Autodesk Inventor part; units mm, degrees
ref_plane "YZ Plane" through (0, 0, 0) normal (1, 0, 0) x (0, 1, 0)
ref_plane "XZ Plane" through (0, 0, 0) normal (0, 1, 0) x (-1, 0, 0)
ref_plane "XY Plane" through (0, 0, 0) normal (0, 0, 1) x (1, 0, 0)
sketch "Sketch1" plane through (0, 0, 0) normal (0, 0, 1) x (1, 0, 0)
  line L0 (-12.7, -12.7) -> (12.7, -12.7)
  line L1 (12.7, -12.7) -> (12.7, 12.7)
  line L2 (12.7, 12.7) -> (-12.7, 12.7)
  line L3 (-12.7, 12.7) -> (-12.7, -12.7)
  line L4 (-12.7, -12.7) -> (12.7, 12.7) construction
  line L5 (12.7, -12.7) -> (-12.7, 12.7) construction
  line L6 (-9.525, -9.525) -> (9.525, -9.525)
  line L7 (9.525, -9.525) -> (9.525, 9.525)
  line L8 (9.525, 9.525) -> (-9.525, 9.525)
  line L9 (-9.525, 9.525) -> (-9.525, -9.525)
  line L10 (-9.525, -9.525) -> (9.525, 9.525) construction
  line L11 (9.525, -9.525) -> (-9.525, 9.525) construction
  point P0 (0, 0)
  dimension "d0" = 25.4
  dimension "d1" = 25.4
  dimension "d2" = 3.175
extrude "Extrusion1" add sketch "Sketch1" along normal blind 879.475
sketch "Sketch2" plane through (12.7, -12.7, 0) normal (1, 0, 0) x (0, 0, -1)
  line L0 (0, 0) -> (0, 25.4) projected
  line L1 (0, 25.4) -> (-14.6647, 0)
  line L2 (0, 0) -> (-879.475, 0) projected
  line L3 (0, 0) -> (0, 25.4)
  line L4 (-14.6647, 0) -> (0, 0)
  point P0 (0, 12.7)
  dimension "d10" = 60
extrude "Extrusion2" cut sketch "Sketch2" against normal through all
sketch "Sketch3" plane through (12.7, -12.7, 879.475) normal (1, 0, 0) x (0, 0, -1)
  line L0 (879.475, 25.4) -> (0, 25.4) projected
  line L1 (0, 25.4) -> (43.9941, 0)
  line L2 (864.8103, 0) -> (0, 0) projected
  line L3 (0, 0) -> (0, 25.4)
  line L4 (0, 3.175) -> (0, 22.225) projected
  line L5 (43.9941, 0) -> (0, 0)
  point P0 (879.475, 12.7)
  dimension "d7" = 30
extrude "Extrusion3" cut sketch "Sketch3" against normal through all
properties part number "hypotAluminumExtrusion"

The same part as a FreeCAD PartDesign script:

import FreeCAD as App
import Part
import Sketcher

V = App.Vector
Q = App.Units.Quantity

doc = App.newDocument("Part")
body = doc.addObject("PartDesign::Body", "Body")

sketch1 = body.newObject("Sketcher::SketchObject", "Sketch")
sketch1.AttachmentSupport = (doc.getObject("XY_Plane"), [""])
sketch1.MapMode = "FlatFace"
sketch1.addGeometry([
    Part.LineSegment(V(-13, 13, 0), V(-13, -13, 0)),
    Part.LineSegment(V(-13, -13, 0), V(13, -13, 0)),
    Part.LineSegment(V(13, -13, 0), V(13, 13, 0)),
    Part.LineSegment(V(13, 13, 0), V(-13, 13, 0)),
    Part.LineSegment(V(10, -10, 0), V(-10, -10, 0)),
    Part.LineSegment(V(-10, -10, 0), V(-10, 10, 0)),
    Part.LineSegment(V(-10, 10, 0), V(10, 10, 0)),
    Part.LineSegment(V(10, 10, 0), V(10, -10, 0)),
], False)
sketch1.addConstraint([
    Sketcher.Constraint("Coincident", 0, 2, 1, 1),
    Sketcher.Constraint("Coincident", 1, 2, 2, 1),
    Sketcher.Constraint("Coincident", 2, 2, 3, 1),
    Sketcher.Constraint("Coincident", 3, 2, 0, 1),
    Sketcher.Constraint("Coincident", 4, 2, 5, 1),
    Sketcher.Constraint("Coincident", 5, 2, 6, 1),
    Sketcher.Constraint("Coincident", 6, 2, 7, 1),
    Sketcher.Constraint("Coincident", 7, 2, 4, 1),
    Sketcher.Constraint("Vertical", 0),
    Sketcher.Constraint("Horizontal", 1),
    Sketcher.Constraint("Vertical", 2),
    Sketcher.Constraint("Horizontal", 3),
    Sketcher.Constraint("Horizontal", 4),
    Sketcher.Constraint("Vertical", 5),
    Sketcher.Constraint("Horizontal", 6),
    Sketcher.Constraint("Vertical", 7),
    Sketcher.Constraint("Symmetric", 0, 2, 2, 2, -1, 1),
    Sketcher.Constraint("Symmetric", 4, 2, 6, 2, -1, 1),
    Sketcher.Constraint("Equal", 3, 0),
    Sketcher.Constraint("Equal", 6, 5),
    Sketcher.Constraint("DistanceX", 1, 1, 1, 2, Q("1 in")),
    Sketcher.Constraint("DistanceX", 0, 2, 4, 2, Q("0.125 in")),
])
pad1 = body.newObject("PartDesign::Pad", "Pad")
pad1.Profile = sketch1
pad1.Length = Q("34.625 in")

sketch2 = body.newObject("Sketcher::SketchObject", "Sketch001")
sketch2.AttachmentSupport = (doc.getObject("YZ_Plane"), [""])
sketch2.MapMode = "FlatFace"
sketch2.AttachmentOffset = App.Placement(V(0, 0, 0.5 * 25.4), App.Rotation())
sketch2.addGeometry([
    Part.LineSegment(V(-13, 15, 0), V(-13, 0, 0)),
    Part.LineSegment(V(-13, 0, 0), V(13, 0, 0)),
    Part.LineSegment(V(13, 0, 0), V(-13, 15, 0)),
], False)
sketch2.addConstraint([
    Sketcher.Constraint("Coincident", 0, 2, 1, 1),
    Sketcher.Constraint("Coincident", 1, 2, 2, 1),
    Sketcher.Constraint("Coincident", 2, 2, 0, 1),
    Sketcher.Constraint("Vertical", 0),
    Sketcher.Constraint("Horizontal", 1),
    Sketcher.Constraint("Symmetric", 0, 2, 1, 2, -1, 1),
    Sketcher.Constraint("DistanceX", 1, 1, 1, 2, Q("1 in")),
    Sketcher.Constraint("Angle", 2, Q("150 deg")),
])
pocket1 = body.newObject("PartDesign::Pocket", "Pocket")
pocket1.Profile = sketch2
pocket1.Type = "ThroughAll"

sketch3 = body.newObject("Sketcher::SketchObject", "Sketch002")
sketch3.AttachmentSupport = (doc.getObject("YZ_Plane"), [""])
sketch3.MapMode = "FlatFace"
sketch3.AttachmentOffset = App.Placement(V(0, 0, 0.5 * 25.4), App.Rotation())
sketch3.addGeometry([
    Part.LineSegment(V(-13, 835, 0), V(13, 879, 0)),
    Part.LineSegment(V(13, 879, 0), V(-13, 879, 0)),
    Part.LineSegment(V(-13, 879, 0), V(-13, 835, 0)),
], False)
sketch3.addConstraint([
    Sketcher.Constraint("Coincident", 0, 2, 1, 1),
    Sketcher.Constraint("Coincident", 1, 2, 2, 1),
    Sketcher.Constraint("Coincident", 2, 2, 0, 1),
    Sketcher.Constraint("Horizontal", 1),
    Sketcher.Constraint("Vertical", 2),
    Sketcher.Constraint("DistanceX", 1, 2, 1, 1, Q("1 in")),
    Sketcher.Constraint("Distance", 0, Q("2 in")),
    Sketcher.Constraint("DistanceX", -1, 1, 0, 2, Q("0.5 in")),
    Sketcher.Constraint("DistanceY", -1, 1, 0, 2, Q("34.625 in")),
])
pocket2 = body.newObject("PartDesign::Pocket", "Pocket001")
pocket2.Profile = sketch3
pocket2.Type = "ThroughAll"

doc.recompute()
